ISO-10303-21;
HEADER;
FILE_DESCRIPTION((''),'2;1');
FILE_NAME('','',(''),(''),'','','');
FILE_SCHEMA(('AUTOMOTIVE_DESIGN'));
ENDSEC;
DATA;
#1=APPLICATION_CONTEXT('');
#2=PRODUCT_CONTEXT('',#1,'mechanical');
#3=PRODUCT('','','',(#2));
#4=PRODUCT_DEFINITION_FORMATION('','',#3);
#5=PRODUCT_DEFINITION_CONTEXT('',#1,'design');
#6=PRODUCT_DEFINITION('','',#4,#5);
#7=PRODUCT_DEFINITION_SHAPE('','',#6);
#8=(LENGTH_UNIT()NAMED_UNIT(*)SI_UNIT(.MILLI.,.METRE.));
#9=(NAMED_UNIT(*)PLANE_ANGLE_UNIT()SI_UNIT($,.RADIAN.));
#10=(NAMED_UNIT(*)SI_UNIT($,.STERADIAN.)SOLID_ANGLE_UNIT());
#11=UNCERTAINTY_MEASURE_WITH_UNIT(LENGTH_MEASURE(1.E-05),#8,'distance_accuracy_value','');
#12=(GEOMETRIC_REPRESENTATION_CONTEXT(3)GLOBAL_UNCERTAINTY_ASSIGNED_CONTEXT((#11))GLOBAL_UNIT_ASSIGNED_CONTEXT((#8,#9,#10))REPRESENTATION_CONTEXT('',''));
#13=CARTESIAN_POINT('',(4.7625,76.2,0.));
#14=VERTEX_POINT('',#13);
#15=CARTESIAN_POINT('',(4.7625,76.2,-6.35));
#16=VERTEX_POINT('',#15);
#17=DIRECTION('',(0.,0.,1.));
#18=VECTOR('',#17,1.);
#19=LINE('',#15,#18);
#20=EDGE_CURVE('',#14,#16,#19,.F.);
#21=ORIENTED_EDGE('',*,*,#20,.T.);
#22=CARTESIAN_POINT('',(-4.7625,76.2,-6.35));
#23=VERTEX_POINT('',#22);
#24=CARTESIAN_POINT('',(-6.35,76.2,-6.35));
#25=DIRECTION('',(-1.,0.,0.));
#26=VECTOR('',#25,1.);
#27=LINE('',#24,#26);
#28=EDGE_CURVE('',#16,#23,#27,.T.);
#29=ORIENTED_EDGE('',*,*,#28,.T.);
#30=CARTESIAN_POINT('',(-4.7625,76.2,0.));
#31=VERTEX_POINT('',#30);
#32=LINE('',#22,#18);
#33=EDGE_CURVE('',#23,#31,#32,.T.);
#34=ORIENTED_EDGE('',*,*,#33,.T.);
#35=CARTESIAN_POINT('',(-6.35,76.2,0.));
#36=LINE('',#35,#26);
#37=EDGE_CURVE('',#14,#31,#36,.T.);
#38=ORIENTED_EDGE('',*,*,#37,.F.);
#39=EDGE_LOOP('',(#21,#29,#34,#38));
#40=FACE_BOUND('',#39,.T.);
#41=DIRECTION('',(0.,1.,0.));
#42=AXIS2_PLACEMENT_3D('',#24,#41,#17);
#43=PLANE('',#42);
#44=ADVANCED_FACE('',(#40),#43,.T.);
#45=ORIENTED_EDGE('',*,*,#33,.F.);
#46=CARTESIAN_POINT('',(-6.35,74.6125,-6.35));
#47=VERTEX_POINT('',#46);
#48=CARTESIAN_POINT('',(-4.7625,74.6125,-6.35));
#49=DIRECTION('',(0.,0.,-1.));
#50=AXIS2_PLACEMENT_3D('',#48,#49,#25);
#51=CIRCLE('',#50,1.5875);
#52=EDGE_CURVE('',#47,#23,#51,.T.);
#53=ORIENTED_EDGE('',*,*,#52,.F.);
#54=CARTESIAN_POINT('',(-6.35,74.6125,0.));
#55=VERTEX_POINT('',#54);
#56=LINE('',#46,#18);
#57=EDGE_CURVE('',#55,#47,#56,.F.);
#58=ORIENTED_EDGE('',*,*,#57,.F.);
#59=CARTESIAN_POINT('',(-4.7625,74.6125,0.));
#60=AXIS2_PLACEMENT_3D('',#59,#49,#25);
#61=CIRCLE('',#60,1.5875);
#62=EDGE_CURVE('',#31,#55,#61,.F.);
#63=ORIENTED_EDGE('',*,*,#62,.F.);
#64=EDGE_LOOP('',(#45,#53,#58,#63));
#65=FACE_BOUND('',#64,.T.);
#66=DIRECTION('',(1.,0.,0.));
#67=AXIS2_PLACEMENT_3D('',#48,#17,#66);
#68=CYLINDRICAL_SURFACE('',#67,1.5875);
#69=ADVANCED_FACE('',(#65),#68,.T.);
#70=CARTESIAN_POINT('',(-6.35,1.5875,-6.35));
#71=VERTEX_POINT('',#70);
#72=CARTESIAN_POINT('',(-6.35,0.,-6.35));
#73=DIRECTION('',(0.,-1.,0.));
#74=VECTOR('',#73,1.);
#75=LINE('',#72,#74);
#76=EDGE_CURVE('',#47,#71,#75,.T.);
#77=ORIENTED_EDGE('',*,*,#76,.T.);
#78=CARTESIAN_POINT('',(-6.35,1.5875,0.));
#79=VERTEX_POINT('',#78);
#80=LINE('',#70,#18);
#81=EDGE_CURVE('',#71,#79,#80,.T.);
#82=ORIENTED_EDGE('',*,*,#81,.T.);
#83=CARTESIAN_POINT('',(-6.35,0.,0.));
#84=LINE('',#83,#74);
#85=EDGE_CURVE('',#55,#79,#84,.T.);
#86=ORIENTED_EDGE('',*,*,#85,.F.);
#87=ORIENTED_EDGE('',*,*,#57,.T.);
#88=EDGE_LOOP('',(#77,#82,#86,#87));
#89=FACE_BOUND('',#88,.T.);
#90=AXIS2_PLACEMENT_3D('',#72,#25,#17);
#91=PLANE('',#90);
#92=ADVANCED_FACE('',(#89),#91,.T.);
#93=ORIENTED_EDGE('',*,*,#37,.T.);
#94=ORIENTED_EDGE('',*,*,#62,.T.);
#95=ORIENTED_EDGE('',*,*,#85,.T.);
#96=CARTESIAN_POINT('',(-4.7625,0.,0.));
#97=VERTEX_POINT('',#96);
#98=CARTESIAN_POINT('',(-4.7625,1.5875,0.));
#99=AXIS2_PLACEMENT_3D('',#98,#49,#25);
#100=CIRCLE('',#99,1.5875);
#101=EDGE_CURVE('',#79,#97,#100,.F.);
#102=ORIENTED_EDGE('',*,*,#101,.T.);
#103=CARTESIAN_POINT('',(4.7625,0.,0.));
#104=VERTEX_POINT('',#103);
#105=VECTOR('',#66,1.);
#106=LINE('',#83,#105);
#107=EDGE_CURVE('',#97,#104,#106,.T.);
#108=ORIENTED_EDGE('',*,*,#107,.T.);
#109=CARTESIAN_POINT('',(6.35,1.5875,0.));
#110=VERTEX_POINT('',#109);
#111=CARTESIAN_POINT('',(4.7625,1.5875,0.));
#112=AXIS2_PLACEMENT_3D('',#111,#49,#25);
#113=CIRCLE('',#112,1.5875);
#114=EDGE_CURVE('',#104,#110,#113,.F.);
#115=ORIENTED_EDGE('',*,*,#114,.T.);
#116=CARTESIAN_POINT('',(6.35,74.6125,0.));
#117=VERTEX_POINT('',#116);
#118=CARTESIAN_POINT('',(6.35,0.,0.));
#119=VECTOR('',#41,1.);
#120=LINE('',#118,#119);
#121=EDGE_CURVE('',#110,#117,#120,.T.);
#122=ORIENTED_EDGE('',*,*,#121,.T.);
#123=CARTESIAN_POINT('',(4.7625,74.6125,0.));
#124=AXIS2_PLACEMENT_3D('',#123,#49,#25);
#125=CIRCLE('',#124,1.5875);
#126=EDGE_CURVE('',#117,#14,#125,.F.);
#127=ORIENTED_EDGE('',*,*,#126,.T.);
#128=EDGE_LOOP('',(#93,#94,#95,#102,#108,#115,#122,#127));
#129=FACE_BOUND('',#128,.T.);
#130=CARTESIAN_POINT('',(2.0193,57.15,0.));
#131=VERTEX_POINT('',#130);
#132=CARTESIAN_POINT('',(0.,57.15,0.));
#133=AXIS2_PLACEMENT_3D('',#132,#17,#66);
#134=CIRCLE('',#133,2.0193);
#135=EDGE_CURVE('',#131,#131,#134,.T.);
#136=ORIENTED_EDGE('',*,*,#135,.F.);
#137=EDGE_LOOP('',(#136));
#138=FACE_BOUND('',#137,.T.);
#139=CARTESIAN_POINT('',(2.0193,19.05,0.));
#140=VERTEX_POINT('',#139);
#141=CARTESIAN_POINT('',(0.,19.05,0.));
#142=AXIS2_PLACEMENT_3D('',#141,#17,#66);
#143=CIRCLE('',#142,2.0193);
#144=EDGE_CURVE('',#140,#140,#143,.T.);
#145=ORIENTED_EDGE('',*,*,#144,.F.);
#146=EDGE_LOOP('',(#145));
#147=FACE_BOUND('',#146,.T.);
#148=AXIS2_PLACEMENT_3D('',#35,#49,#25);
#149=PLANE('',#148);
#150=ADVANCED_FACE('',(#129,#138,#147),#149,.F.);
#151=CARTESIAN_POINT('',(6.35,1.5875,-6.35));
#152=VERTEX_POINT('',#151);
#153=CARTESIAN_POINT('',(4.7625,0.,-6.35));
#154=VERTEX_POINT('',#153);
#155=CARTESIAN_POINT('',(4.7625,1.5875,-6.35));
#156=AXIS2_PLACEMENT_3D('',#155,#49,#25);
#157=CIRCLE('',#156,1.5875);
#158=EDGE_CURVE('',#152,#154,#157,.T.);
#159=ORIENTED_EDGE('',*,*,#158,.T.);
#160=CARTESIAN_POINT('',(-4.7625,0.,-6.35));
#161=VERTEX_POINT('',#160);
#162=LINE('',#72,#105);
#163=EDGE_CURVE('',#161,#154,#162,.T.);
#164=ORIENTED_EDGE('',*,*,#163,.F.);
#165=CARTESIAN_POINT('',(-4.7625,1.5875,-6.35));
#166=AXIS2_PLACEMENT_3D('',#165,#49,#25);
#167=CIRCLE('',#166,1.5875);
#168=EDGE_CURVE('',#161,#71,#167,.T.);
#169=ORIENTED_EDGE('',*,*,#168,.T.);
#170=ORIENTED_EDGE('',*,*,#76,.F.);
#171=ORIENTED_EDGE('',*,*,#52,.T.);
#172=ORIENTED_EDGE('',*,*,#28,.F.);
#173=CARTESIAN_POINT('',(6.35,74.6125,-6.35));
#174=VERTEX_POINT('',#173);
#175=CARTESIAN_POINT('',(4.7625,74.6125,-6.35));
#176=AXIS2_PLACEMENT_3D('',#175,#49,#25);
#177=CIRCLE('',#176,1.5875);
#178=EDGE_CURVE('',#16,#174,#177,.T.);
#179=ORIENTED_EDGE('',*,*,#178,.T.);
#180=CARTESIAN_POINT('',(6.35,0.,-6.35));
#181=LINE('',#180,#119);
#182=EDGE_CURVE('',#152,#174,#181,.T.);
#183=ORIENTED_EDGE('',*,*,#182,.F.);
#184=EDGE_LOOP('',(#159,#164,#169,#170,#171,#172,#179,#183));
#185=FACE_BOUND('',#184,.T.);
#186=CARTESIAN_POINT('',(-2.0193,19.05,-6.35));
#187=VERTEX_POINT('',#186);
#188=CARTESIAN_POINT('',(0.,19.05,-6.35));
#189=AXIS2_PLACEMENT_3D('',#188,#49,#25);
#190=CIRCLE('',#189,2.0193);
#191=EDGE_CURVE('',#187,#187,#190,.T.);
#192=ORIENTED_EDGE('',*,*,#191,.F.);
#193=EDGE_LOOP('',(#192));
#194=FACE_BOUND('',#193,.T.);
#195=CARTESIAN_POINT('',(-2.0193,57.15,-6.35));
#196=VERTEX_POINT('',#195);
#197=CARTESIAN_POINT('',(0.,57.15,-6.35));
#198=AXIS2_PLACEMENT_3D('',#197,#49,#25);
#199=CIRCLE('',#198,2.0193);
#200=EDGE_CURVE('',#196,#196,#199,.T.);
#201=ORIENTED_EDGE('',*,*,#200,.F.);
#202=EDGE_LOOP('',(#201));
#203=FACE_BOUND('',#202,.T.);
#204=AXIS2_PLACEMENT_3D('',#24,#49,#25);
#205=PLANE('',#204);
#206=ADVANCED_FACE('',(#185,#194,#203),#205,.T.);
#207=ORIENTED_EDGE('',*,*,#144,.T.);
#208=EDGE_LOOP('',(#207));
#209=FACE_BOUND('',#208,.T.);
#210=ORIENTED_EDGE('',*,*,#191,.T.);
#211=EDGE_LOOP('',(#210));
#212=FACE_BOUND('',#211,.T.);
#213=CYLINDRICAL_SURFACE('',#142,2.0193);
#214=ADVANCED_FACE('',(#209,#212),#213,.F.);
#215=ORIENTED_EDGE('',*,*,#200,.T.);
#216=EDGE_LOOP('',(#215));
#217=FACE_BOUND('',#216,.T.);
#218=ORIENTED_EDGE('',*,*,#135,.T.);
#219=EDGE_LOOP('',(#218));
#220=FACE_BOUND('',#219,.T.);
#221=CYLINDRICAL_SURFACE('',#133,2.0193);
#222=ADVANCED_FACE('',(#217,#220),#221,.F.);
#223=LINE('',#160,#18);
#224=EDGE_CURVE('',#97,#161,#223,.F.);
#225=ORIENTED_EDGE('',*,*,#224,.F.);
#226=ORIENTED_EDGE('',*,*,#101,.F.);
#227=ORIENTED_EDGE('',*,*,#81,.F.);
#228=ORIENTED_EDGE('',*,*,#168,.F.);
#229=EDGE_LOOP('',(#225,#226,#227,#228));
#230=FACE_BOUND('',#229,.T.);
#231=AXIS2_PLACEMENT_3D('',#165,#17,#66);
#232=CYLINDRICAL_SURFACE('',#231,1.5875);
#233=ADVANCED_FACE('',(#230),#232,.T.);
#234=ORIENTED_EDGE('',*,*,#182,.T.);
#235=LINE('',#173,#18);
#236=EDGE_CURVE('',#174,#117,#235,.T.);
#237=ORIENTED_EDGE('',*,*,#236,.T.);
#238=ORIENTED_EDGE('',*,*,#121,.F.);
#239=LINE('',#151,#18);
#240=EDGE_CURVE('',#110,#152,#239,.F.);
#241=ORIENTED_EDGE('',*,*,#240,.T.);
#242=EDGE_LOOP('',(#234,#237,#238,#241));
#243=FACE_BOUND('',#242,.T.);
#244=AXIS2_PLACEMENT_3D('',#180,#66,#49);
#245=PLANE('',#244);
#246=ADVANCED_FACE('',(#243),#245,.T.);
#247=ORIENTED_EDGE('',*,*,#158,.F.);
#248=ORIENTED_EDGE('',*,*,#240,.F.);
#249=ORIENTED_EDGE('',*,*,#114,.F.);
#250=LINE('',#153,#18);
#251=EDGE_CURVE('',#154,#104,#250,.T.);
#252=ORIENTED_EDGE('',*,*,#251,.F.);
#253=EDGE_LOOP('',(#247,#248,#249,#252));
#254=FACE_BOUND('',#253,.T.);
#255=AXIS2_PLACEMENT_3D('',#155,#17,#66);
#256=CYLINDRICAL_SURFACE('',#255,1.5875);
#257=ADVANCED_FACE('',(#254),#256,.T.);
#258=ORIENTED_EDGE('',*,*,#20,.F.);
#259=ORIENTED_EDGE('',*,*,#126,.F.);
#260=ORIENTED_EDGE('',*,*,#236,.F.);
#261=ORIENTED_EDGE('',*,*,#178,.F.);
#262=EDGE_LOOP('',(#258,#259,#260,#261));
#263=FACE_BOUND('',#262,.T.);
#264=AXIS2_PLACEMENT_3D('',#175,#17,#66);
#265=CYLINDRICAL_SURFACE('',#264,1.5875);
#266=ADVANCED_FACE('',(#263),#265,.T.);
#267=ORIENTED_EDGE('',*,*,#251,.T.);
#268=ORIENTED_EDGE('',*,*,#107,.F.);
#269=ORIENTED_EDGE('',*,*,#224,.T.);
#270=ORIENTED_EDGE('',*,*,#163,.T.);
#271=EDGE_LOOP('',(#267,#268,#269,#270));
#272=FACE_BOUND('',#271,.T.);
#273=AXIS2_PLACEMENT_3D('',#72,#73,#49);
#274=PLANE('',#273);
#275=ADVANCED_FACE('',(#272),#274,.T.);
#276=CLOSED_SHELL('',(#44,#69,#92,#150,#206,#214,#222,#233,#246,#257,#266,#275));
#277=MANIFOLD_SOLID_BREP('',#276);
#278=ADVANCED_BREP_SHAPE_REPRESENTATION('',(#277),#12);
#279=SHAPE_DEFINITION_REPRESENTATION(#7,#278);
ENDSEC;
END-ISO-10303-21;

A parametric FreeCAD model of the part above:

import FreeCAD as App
import Part
import Sketcher
from FreeCAD import Vector
Q = App.Units.Quantity


def edges_at(feature, points):
    """Names of the edges that pass closest to the given points."""
    edges = feature.Shape.Edges
    near = lambda p: min(range(len(edges)), key=lambda i: edges[i].distToShape(Part.Vertex(*p))[0])
    return sorted({f"Edge{near(p) + 1}" for p in points})

doc = App.newDocument("Part")
params = doc.addObject("Spreadsheet::Sheet", "Params")
for row, (alias, value) in enumerate([
    ("sketch1_height", "3 in"),
    ("sketch1_width", "0.5 in"),
    ("pad1_length", "0.25 in"),
    ("sketch2_diameter", "0.159 in"),
    ("hole_diameter", "0.159 in"),
    ("hole_depth", "0.54 in"),
    ("fillet_radius", "0.0625 in"),
], start=1):
    params.set(f"A{row}", alias)
    params.set(f"B{row}", "=" + value)
    params.setAlias(f"B{row}", alias)

body = doc.addObject("PartDesign::Body", "Body")

# Sketch on XY plane
sketch1 = body.newObject("Sketcher::SketchObject", "Sketch")
sketch1.AttachmentSupport = (doc.getObject("XY_Plane"), [""])
sketch1.MapMode = "FlatFace"
sketch1.addGeometry([
    Part.LineSegment(Vector(-6, 76, 0), Vector(-6, 0, 0)),
    Part.LineSegment(Vector(-6, 0, 0), Vector(6, 0, 0)),
    Part.LineSegment(Vector(6, 0, 0), Vector(6, 76, 0)),
    Part.LineSegment(Vector(6, 76, 0), Vector(-6, 76, 0)),
], False)
sketch1.addConstraint([
    Sketcher.Constraint("Coincident", 0, 2, 1, 1),
    Sketcher.Constraint("Coincident", 1, 2, 2, 1),
    Sketcher.Constraint("Coincident", 2, 2, 3, 1),
    Sketcher.Constraint("Coincident", 3, 2, 0, 1),
    Sketcher.Constraint("Vertical", 0),
    Sketcher.Constraint("Horizontal", 1),
    Sketcher.Constraint("Vertical", 2),
    Sketcher.Constraint("Horizontal", 3),
    Sketcher.Constraint("Symmetric", 0, 2, 1, 2, -1, 1),
    Sketcher.Constraint("DistanceY", 0, 2, 0, 1, Q("3 in")),
    Sketcher.Constraint("DistanceX", 1, 1, 1, 2, Q("0.5 in")),
])
sketch1.setExpression("Constraints[9]", "Params.sketch1_height")
sketch1.setExpression("Constraints[10]", "Params.sketch1_width")
pad1 = body.newObject("PartDesign::Pad", "Pad")
pad1.Profile = sketch1
pad1.setExpression("Length", "Params.pad1_length")
pad1.Reversed = True

# Sketch on XY plane
sketch2 = body.newObject("Sketcher::SketchObject", "Sketch001")
sketch2.AttachmentSupport = (doc.getObject("XY_Plane"), [""])
sketch2.MapMode = "FlatFace"
sketch2.addGeometry([
    Part.Circle(Vector(0, 57.1, 0), Vector(0, 0, 1), 2),
    Part.Circle(Vector(0, 19.1, 0), Vector(0, 0, 1), 2),
], False)
sketch2.addConstraint([
    Sketcher.Constraint("Equal", 0, 1),
    Sketcher.Constraint("PointOnObject", 0, 3, -2),
    Sketcher.Constraint("PointOnObject", 1, 3, -2),
    Sketcher.Constraint("Diameter", 0, Q("0.159 in")),
    Sketcher.Constraint("DistanceY", 1, 3, 0, 3, Q("1.5 in")),
    Sketcher.Constraint("DistanceY", -1, 1, 0, 3, Q("2.25 in")),
])
sketch2.setExpression("Constraints[3]", "Params.sketch2_diameter")
doc.recompute()
hole = body.newObject("PartDesign::Hole", "Hole")
hole.Profile = sketch2
hole.ThreadType = "None"
hole.setExpression("Diameter", "Params.hole_diameter")
hole.DepthType = "Dimension"
hole.setExpression("Depth", "Params.hole_depth")
hole.DrillPoint = "Angled"
hole.DrillPointAngle = 118
doc.recompute()

fillet = body.newObject("PartDesign::Fillet", "Fillet")
fillet.Base = (hole, edges_at(hole, [
    (-6.35, 76.2, -3.175),
    (6.35, 76.2, -3.175),
    (6.35, 0, -3.175),
    (-6.35, 0, -3.175),
]))
fillet.setExpression("Radius", "Params.fillet_radius")

doc.recompute()
